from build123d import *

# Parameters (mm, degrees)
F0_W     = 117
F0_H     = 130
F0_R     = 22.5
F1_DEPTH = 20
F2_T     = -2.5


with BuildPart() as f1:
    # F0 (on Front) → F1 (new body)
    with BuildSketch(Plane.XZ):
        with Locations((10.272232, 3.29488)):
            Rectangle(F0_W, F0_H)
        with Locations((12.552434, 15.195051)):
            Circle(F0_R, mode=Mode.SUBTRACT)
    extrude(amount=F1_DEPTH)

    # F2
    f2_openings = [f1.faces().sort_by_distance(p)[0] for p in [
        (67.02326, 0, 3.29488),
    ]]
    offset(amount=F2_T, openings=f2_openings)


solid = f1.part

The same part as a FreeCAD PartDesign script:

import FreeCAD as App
import Part
import Sketcher
from FreeCAD import Vector
Q = App.Units.Quantity


def faces_at(feature, points):
    """Names of the faces that lie closest to the given points."""
    faces = feature.Shape.Faces
    near = lambda p: min(range(len(faces)), key=lambda i: faces[i].distToShape(Part.Vertex(*p))[0])
    return sorted({f"Face{near(p) + 1}" for p in points})


def add_polygon(sketch, points):
    """Adds a closed chain of lines whose ends are joined by coincident constraints."""
    first, n = sketch.GeometryCount, len(points)
    for a, b in zip(points, points[1:] + points[:1]):
        sketch.addGeometry(Part.LineSegment(App.Vector(*a, 0), App.Vector(*b, 0)), False)
    for i in range(n):
        sketch.addConstraint(Sketcher.Constraint("Coincident", first + i, 2, first + (i + 1) % n, 1))

doc = App.newDocument("Part")
params = doc.addObject("Spreadsheet::Sheet", "Params")
for row, (alias, value) in enumerate([
    ("sketch1_diameter", "45 mm"),
    ("sketch1_width", "117 mm"),
    ("sketch1_height", "130 mm"),
    ("pad1_length", "20 mm"),
    ("thickness_wall", "2.5 mm"),
], start=1):
    params.set(f"A{row}", alias)
    params.set(f"B{row}", "=" + value)
    params.setAlias(f"B{row}", alias)

body = doc.addObject("PartDesign::Body", "Body")

# Sketch on XZ plane
sketch1 = doc.addObject("Sketcher::SketchObject", "Sketch")
body.addObject(sketch1)
sketch1.AttachmentSupport = (doc.XZ_Plane, [""])
sketch1.MapMode = "FlatFace"
add_polygon(sketch1, [(-48, 68), (-48, -62), (69, -62), (69, 68)])  # lines 0-3
sketch1.addGeometry(Part.Circle(Vector(13, 15, 0), Vector(0, 0, 1), 22), False)  # 4
sketch1.addConstraint([
    Sketcher.Constraint("Vertical", 0),
    Sketcher.Constraint("Horizontal", 1),
    Sketcher.Constraint("Vertical", 2),
    Sketcher.Constraint("Horizontal", 3),
    Sketcher.Constraint("Diameter", 4, Q("45 mm")),
    Sketcher.Constraint("DistanceX", 1, 1, 1, 2, Q("117 mm")),
    Sketcher.Constraint("DistanceY", 0, 2, 0, 1, Q("130 mm")),
    Sketcher.Constraint("DistanceX", 0, 2, 4, 3, Q("60.780202 mm")),
    Sketcher.Constraint("DistanceY", -1, 1, 4, 3, Q("15.195051 mm")),
    Sketcher.Constraint("DistanceY", 0, 2, -1, 1, Q("61.70512 mm")),
    Sketcher.Constraint("DistanceX", -1, 1, 4, 3, Q("12.552434 mm")),
])
sketch1.setExpression("Constraints[8]", "Params.sketch1_diameter")
sketch1.setExpression("Constraints[9]", "Params.sketch1_width")
sketch1.setExpression("Constraints[10]", "Params.sketch1_height")
pad1 = doc.addObject("PartDesign::Pad", "Pad")
body.addObject(pad1)
pad1.Profile = sketch1
pad1.setExpression("Length", "Params.pad1_length")
doc.recompute()

thickness = doc.addObject("PartDesign::Thickness", "Thickness")
body.addObject(thickness)
thickness.Base = (pad1, faces_at(pad1, [(-13.128, 0, -22.705)]))
thickness.setExpression("Value", "Params.thickness_wall")
thickness.Reversed = True
thickness.Join = "Arc"

doc.recompute()
